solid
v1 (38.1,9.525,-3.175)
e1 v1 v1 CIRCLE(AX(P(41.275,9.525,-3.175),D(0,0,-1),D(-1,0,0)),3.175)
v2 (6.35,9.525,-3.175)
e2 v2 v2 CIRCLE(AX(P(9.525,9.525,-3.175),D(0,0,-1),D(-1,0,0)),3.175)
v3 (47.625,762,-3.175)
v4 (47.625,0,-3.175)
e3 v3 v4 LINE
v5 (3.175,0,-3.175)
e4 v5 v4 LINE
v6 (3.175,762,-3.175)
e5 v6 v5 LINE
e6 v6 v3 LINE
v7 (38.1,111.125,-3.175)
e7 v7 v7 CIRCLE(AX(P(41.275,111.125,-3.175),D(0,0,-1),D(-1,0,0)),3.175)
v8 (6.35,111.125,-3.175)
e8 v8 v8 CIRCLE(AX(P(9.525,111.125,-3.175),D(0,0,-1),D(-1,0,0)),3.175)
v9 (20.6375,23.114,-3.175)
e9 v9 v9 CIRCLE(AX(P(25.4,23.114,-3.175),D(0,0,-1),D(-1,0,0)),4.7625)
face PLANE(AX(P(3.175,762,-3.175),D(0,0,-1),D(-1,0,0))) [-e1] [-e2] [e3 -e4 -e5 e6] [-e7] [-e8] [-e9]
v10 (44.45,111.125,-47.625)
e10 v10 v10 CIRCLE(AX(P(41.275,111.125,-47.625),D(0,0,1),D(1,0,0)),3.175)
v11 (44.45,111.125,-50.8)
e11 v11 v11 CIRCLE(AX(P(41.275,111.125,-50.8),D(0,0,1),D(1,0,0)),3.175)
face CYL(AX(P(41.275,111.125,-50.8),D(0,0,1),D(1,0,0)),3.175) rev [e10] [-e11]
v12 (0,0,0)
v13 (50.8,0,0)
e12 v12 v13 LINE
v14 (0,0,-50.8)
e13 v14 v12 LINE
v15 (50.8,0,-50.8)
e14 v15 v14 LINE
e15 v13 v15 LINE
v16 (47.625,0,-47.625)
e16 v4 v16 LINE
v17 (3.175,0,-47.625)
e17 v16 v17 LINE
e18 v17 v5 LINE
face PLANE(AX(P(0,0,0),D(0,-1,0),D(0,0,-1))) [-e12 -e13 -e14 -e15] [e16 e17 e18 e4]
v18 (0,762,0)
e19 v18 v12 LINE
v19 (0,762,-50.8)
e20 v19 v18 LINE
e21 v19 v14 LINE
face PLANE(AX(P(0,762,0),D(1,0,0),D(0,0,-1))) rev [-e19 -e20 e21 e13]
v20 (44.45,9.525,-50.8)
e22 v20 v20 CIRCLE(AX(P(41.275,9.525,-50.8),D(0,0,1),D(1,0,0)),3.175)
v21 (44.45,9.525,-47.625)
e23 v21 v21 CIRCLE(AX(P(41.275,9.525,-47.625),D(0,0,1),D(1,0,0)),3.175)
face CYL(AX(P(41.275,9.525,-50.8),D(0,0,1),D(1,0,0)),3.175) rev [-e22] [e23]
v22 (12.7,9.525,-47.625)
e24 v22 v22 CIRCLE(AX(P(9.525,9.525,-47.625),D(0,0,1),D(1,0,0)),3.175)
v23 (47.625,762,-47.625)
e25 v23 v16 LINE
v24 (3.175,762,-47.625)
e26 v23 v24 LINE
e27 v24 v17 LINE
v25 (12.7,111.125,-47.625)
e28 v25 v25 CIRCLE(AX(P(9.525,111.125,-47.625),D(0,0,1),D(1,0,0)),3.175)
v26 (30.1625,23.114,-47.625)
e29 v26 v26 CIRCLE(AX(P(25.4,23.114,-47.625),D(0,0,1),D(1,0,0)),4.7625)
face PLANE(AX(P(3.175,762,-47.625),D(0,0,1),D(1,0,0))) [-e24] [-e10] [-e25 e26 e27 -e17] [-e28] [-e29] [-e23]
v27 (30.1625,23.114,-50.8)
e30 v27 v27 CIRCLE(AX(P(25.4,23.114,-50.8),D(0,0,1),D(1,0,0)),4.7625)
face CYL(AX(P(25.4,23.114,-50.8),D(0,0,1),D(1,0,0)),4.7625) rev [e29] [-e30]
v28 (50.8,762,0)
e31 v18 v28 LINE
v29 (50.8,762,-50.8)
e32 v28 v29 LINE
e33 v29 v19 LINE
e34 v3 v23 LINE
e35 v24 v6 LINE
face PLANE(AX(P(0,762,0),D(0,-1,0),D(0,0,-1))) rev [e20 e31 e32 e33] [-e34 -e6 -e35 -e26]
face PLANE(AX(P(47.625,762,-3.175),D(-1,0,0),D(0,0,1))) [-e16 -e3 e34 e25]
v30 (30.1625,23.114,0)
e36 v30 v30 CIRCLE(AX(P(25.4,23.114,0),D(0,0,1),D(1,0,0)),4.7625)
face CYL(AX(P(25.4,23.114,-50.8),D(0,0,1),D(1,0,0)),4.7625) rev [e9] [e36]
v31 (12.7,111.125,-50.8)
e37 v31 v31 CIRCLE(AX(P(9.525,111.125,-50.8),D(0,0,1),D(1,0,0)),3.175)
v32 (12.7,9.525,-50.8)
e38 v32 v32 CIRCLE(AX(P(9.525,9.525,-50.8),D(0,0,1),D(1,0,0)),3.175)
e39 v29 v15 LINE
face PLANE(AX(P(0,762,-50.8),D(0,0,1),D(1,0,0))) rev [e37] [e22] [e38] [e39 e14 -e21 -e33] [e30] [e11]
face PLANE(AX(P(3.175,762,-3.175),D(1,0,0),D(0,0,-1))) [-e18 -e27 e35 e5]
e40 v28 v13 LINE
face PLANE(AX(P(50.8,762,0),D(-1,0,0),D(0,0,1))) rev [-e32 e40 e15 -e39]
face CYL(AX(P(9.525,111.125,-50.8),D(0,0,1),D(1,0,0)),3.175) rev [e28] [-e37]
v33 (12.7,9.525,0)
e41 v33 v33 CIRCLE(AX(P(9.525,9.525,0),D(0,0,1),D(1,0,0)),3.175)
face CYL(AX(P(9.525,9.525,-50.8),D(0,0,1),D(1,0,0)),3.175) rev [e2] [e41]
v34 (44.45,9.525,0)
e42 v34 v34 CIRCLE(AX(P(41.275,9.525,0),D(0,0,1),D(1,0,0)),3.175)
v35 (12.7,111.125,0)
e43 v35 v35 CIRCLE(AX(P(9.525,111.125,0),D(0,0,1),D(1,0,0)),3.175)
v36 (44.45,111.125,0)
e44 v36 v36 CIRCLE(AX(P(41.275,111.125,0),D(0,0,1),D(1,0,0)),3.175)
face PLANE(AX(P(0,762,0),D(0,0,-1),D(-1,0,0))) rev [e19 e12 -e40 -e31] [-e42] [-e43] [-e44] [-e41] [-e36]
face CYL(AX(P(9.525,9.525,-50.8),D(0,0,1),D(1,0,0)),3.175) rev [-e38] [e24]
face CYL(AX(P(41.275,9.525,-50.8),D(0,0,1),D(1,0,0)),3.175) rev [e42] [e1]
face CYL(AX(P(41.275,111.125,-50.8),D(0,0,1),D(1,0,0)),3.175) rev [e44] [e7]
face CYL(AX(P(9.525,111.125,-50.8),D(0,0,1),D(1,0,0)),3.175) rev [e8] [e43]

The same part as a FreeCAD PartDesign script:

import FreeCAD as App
import Part
import Sketcher
Q = App.Units.Quantity

doc = App.newDocument("Part")
body = doc.addObject("PartDesign::Body", "Body")

sketch1 = doc.addObject("Sketcher::SketchObject", "Sketch")
body.addObject(sketch1)
sketch1.AttachmentSupport = (doc.XZ_Plane, [""])
sketch1.MapMode = "FlatFace"
sketch1.addGeometry([
    Part.LineSegment(App.Vector(0, -51, 0), App.Vector(0, 0, 0)),
    Part.LineSegment(App.Vector(0, 0, 0), App.Vector(51, 0, 0)),
    Part.LineSegment(App.Vector(51, 0, 0), App.Vector(51, -51, 0)),
    Part.LineSegment(App.Vector(51, -51, 0), App.Vector(0, -51, 0)),
    Part.LineSegment(App.Vector(48, -3, 0), App.Vector(3, -3, 0)),
    Part.LineSegment(App.Vector(3, -3, 0), App.Vector(3, -48, 0)),
    Part.LineSegment(App.Vector(3, -48, 0), App.Vector(48, -48, 0)),
    Part.LineSegment(App.Vector(48, -48, 0), App.Vector(48, -3, 0)),
], False)
sketch1.addConstraint([
    Sketcher.Constraint("Coincident", 0, 2, 1, 1),
    Sketcher.Constraint("Coincident", 1, 2, 2, 1),
    Sketcher.Constraint("Coincident", 2, 2, 3, 1),
    Sketcher.Constraint("Coincident", 3, 2, 0, 1),
    Sketcher.Constraint("Coincident", 4, 2, 5, 1),
    Sketcher.Constraint("Coincident", 5, 2, 6, 1),
    Sketcher.Constraint("Coincident", 6, 2, 7, 1),
    Sketcher.Constraint("Coincident", 7, 2, 4, 1),
    Sketcher.Constraint("Vertical", 0),
    Sketcher.Constraint("Horizontal", 1),
    Sketcher.Constraint("Vertical", 2),
    Sketcher.Constraint("Horizontal", 3),
    Sketcher.Constraint("Horizontal", 4),
    Sketcher.Constraint("Vertical", 5),
    Sketcher.Constraint("Horizontal", 6),
    Sketcher.Constraint("Vertical", 7),
    Sketcher.Constraint("Coincident", 0, 2, -1, 1),
    Sketcher.Constraint("Equal", 3, 0),
    Sketcher.Constraint("Equal", 6, 5),
    Sketcher.Constraint("DistanceX", 1, 1, 1, 2, Q("2 in")),
    Sketcher.Constraint("DistanceX", 4, 2, 4, 1, Q("1.75 in")),
    Sketcher.Constraint("DistanceX", -1, 1, 4, 2, Q("0.125 in")),
    Sketcher.Constraint("DistanceY", 4, 2, -1, 1, Q("0.125 in")),
])
pad1 = doc.addObject("PartDesign::Pad", "Pad")
body.addObject(pad1)
pad1.Profile = sketch1
pad1.Length = Q("30 in")
pad1.Reversed = True

sketch2 = doc.addObject("Sketcher::SketchObject", "Sketch001")
body.addObject(sketch2)
sketch2.AttachmentSupport = (doc.XY_Plane, [""])
sketch2.MapMode = "FlatFace"
sketch2.addGeometry([
    Part.Circle(App.Vector(9.5, 111.1, 0), App.Vector(0, 0, 1), 3.2),
    Part.Circle(App.Vector(41.3, 111.1, 0), App.Vector(0, 0, 1), 3.2),
    Part.Circle(App.Vector(9.5, 9.5, 0), App.Vector(0, 0, 1), 3.2),
    Part.Circle(App.Vector(41.3, 9.5, 0), App.Vector(0, 0, 1), 3.2),
    Part.Circle(App.Vector(25.4, 23.1, 0), App.Vector(0, 0, 1), 4.8),
], False)
sketch2.addConstraint([
    Sketcher.Constraint("Equal", 0, 1),
    Sketcher.Constraint("Equal", 1, 2),
    Sketcher.Constraint("Equal", 2, 3),
    Sketcher.Constraint("Horizontal", 0, 3, 1, 3),
    Sketcher.Constraint("Horizontal", 2, 3, 3, 3),
    Sketcher.Constraint("Vertical", 0, 3, 2, 3),
    Sketcher.Constraint("Vertical", 1, 3, 3, 3),
    Sketcher.Constraint("Diameter", 0, Q("0.25 in")),
    Sketcher.Constraint("Diameter", 4, Q("0.375 in")),
    Sketcher.Constraint("DistanceX", -1, 1, 4, 3, Q("1 in")),
    Sketcher.Constraint("DistanceY", 2, 3, 0, 3, Q("4 in")),
    Sketcher.Constraint("DistanceY", -1, 1, 4, 3, Q("0.91 in")),
    Sketcher.Constraint("DistanceX", 0, 3, 1, 3, Q("1.25 in")),
    Sketcher.Constraint("DistanceX", -1, 1, 0, 3, Q("0.375 in")),
    Sketcher.Constraint("DistanceY", -1, 1, 0, 3, Q("4.375 in")),
])
pocket1 = doc.addObject("PartDesign::Pocket", "Pocket")
body.addObject(pocket1)
pocket1.Profile = sketch2
pocket1.Type = "ThroughAll"

doc.recompute()
